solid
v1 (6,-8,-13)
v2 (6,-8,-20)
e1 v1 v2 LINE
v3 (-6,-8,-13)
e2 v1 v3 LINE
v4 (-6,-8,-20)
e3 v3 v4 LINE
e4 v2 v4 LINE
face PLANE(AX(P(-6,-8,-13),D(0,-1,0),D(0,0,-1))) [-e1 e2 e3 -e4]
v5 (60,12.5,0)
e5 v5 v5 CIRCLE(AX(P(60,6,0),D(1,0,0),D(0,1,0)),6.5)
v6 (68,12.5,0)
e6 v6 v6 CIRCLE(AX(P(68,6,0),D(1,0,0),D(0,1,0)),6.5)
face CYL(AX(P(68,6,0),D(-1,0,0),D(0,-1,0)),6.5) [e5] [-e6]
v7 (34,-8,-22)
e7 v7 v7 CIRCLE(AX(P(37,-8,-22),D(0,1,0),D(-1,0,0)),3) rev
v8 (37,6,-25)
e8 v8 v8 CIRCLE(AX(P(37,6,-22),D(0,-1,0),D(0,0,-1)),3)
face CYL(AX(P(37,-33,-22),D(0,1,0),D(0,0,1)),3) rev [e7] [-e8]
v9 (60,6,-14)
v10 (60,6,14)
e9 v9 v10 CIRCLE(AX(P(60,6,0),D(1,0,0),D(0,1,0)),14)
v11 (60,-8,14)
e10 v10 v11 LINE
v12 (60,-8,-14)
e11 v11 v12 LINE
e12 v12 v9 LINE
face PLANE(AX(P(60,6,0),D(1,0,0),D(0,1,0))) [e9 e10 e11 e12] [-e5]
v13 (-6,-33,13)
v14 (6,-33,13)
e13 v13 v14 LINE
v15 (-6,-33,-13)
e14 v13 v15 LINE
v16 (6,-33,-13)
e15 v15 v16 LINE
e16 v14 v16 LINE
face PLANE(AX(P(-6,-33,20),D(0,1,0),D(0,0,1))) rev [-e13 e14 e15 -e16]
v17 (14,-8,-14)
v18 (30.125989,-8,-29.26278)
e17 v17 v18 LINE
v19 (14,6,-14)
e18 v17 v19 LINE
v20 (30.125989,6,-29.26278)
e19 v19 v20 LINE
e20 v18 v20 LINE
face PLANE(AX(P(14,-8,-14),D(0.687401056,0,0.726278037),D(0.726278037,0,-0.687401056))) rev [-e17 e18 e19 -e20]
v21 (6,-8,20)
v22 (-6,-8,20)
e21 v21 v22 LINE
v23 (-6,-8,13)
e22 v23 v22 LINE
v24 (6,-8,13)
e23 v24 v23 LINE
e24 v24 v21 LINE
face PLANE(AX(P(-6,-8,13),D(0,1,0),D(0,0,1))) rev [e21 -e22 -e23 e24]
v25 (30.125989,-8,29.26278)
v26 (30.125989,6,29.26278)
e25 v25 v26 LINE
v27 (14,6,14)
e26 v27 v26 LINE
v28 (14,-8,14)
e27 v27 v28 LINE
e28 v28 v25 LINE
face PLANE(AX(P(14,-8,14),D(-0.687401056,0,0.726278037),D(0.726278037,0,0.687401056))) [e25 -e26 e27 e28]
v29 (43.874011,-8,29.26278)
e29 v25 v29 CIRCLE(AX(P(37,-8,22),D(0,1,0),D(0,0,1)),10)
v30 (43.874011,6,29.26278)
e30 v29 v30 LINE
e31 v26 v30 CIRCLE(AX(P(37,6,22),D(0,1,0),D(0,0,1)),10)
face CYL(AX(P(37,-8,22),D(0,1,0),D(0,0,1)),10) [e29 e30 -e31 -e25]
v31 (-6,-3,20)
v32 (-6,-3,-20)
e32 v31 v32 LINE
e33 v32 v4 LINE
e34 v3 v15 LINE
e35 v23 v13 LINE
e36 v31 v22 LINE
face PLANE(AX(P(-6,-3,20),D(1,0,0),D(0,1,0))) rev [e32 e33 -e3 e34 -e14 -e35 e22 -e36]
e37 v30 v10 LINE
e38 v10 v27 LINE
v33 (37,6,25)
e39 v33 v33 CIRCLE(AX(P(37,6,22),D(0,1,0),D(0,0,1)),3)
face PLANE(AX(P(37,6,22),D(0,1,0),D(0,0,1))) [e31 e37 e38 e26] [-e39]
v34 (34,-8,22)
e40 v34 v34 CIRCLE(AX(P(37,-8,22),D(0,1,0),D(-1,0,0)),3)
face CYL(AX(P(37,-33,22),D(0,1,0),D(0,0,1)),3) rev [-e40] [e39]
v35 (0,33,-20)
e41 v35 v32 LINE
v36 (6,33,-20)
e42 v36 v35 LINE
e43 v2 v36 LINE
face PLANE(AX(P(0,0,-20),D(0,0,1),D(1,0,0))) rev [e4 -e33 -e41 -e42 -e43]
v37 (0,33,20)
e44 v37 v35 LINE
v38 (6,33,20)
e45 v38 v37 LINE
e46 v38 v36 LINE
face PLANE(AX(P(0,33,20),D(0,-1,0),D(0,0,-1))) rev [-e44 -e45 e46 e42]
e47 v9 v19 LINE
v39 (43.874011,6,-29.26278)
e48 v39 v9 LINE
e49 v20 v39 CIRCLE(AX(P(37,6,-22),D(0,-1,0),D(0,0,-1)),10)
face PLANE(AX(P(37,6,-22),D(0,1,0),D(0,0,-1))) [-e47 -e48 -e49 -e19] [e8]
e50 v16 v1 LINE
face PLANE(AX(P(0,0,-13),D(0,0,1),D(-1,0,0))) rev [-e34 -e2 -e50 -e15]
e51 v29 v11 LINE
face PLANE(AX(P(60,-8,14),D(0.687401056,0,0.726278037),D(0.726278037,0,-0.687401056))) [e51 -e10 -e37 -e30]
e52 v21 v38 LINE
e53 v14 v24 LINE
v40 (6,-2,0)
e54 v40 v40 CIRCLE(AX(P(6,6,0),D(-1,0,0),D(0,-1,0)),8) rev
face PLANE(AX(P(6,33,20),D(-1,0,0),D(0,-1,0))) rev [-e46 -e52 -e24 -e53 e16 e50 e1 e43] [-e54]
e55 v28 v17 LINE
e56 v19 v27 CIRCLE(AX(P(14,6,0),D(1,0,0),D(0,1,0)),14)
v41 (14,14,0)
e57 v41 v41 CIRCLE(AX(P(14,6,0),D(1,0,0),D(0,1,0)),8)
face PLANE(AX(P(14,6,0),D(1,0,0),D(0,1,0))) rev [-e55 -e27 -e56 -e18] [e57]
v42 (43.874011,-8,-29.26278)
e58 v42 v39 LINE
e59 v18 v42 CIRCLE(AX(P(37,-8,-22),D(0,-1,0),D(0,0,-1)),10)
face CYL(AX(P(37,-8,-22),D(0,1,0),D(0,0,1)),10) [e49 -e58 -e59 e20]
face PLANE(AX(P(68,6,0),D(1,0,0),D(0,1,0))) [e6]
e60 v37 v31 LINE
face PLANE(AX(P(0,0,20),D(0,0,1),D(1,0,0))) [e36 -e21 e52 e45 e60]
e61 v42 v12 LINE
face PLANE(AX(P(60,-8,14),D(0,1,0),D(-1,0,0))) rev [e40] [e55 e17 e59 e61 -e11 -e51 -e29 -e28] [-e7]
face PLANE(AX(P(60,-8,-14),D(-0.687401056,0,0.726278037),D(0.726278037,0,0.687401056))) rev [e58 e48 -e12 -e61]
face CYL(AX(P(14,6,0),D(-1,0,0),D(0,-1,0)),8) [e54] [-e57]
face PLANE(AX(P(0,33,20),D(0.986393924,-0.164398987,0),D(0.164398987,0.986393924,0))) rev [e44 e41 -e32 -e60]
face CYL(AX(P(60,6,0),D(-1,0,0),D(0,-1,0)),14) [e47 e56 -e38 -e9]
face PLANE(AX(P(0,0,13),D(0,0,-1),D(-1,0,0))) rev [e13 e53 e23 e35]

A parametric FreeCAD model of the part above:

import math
import FreeCAD as App
import Part
import Sketcher

V = App.Vector
Q = App.Units.Quantity

doc = App.newDocument("Part")
params = doc.addObject("Spreadsheet::Sheet", "Params")
for row, (alias, value) in enumerate([
    ("sketch1_width", "6 mm"),
    ("sketch1_height", "30 mm"),
    ("sketch1_height2", "66 mm"),
    ("pad1_length", "40 mm"),
    ("sketch2_width", "12 mm"),
    ("sketch2_height", "25 mm"),
    ("pocket1_length", "7 mm"),
    ("sketch3_diameter", "16 mm"),
    ("pad2_length", "8 mm"),
    ("sketch4_radius", "14 mm"),
    ("sketch4_width", "14 mm"),
    ("pad3_length", "46 mm"),
    ("sketch5_radius", "10 mm"),
    ("sketch5_width", "46 mm"),
    ("pad4_length", "14 mm"),
    ("sketch6_diameter", "13 mm"),
    ("pad5_length", "8 mm"),
    ("sketch7_diameter", "6 mm"),
], start=1):
    params.set(f"A{row}", alias)
    params.set(f"B{row}", "=" + value)
    params.setAlias(f"B{row}", alias)

body = doc.addObject("PartDesign::Body", "Body")

# Sketch on XY plane
sketch1 = body.newObject("Sketcher::SketchObject", "Sketch")
sketch1.AttachmentSupport = (doc.getObject("XY_Plane"), [""])
sketch1.MapMode = "FlatFace"
sketch1.addGeometry(Part.LineSegment(V(6, 33, 0), V(0, 33, 0)), False)
sketch1.addGeometry(Part.LineSegment(V(0, 33, 0), V(-6, -3, 0)), False)
sketch1.addGeometry(Part.LineSegment(V(-6, -3, 0), V(-6, -33, 0)), False)
sketch1.addGeometry(Part.LineSegment(V(-6, -33, 0), V(6, -33, 0)), False)
sketch1.addGeometry(Part.LineSegment(V(6, -33, 0), V(6, 33, 0)), False)
sketch1.addConstraint(Sketcher.Constraint("Coincident", 0, 2, 1, 1))
sketch1.addConstraint(Sketcher.Constraint("Coincident", 1, 2, 2, 1))
sketch1.addConstraint(Sketcher.Constraint("Coincident", 2, 2, 3, 1))
sketch1.addConstraint(Sketcher.Constraint("Coincident", 3, 2, 4, 1))
sketch1.addConstraint(Sketcher.Constraint("Coincident", 4, 2, 0, 1))
sketch1.addConstraint(Sketcher.Constraint("Horizontal", 0))
sketch1.addConstraint(Sketcher.Constraint("Vertical", 2))
sketch1.addConstraint(Sketcher.Constraint("Horizontal", 3))
sketch1.addConstraint(Sketcher.Constraint("Vertical", 4))
sketch1.addConstraint(Sketcher.Constraint("Symmetric", 2, 2, 4, 2, -1, 1))
sketch1.addConstraint(Sketcher.Constraint("PointOnObject", 0, 2, -2))
sketch1.addConstraint(Sketcher.Constraint("DistanceX", 0, 2, 0, 1, Q("6 mm")))
sketch1.addConstraint(Sketcher.Constraint("DistanceY", 2, 2, 2, 1, Q("30 mm")))
sketch1.addConstraint(Sketcher.Constraint("DistanceY", 4, 1, 4, 2, Q("66 mm")))
sketch1.setExpression("Constraints[11]", "Params.sketch1_width")
sketch1.setExpression("Constraints[12]", "Params.sketch1_height")
sketch1.setExpression("Constraints[13]", "Params.sketch1_height2")
pad1 = body.newObject("PartDesign::Pad", "Pad")
pad1.Profile = sketch1
pad1.setExpression("Length", "Params.pad1_length")
pad1.Midplane = True

# Sketch on XY plane
sketch2 = body.newObject("Sketcher::SketchObject", "Sketch001")
sketch2.AttachmentSupport = (doc.getObject("XY_Plane"), [""])
sketch2.MapMode = "FlatFace"
sketch2.AttachmentOffset = App.Placement(V(0, 0, 20), App.Rotation())
sketch2.addGeometry(Part.LineSegment(V(-6, -8, 0), V(-6, -33, 0)), False)
sketch2.addGeometry(Part.LineSegment(V(-6, -33, 0), V(6, -33, 0)), False)
sketch2.addGeometry(Part.LineSegment(V(6, -33, 0), V(6, -8, 0)), False)
sketch2.addGeometry(Part.LineSegment(V(6, -8, 0), V(-6, -8, 0)), False)
sketch2.addConstraint(Sketcher.Constraint("Coincident", 0, 2, 1, 1))
sketch2.addConstraint(Sketcher.Constraint("Coincident", 1, 2, 2, 1))
sketch2.addConstraint(Sketcher.Constraint("Coincident", 2, 2, 3, 1))
sketch2.addConstraint(Sketcher.Constraint("Coincident", 3, 2, 0, 1))
sketch2.addConstraint(Sketcher.Constraint("Vertical", 0))
sketch2.addConstraint(Sketcher.Constraint("Horizontal", 1))
sketch2.addConstraint(Sketcher.Constraint("Vertical", 2))
sketch2.addConstraint(Sketcher.Constraint("Horizontal", 3))
sketch2.addConstraint(Sketcher.Constraint("DistanceX", 1, 1, 1, 2, Q("12 mm")))
sketch2.addConstraint(Sketcher.Constraint("DistanceY", 0, 2, 0, 1, Q("25 mm")))
sketch2.addConstraint(Sketcher.Constraint("DistanceX", 0, 2, -1, 1, Q("6 mm")))
sketch2.addConstraint(Sketcher.Constraint("DistanceY", 0, 2, -1, 1, Q("33 mm")))
sketch2.setExpression("Constraints[8]", "Params.sketch2_width")
sketch2.setExpression("Constraints[9]", "Params.sketch2_height")
pocket1 = body.newObject("PartDesign::Pocket", "Pocket")
pocket1.Profile = sketch2
pocket1.setExpression("Length", "Params.pocket1_length")
doc.recompute()

mirrored = body.newObject("PartDesign::Mirrored", "Mirrored")
mirrored.Originals = [pocket1]
mirrored.MirrorPlane = (doc.getObject("XY_Plane"), [""])
body.Tip = mirrored

# Sketch on YZ plane
sketch3 = body.newObject("Sketcher::SketchObject", "Sketch002")
sketch3.AttachmentSupport = (doc.getObject("YZ_Plane"), [""])
sketch3.MapMode = "FlatFace"
sketch3.AttachmentOffset = App.Placement(V(0, 0, 6), App.Rotation())
sketch3.addGeometry(Part.Circle(V(6, 0, 0), V(0, 0, 1), 8), False)
sketch3.addConstraint(Sketcher.Constraint("PointOnObject", 0, 3, -1))
sketch3.addConstraint(Sketcher.Constraint("Diameter", 0, Q("16 mm")))
sketch3.addConstraint(Sketcher.Constraint("DistanceX", -1, 1, 0, 3, Q("6 mm")))
sketch3.setExpression("Constraints[1]", "Params.sketch3_diameter")
pad2 = body.newObject("PartDesign::Pad", "Pad001")
pad2.Profile = sketch3
pad2.setExpression("Length", "Params.pad2_length")

# Sketch on YZ plane
sketch4 = body.newObject("Sketcher::SketchObject", "Sketch003")
sketch4.AttachmentSupport = (doc.getObject("YZ_Plane"), [""])
sketch4.MapMode = "FlatFace"
sketch4.AttachmentOffset = App.Placement(V(0, 0, 14), App.Rotation())
sketch4.addGeometry(Part.LineSegment(V(6, 14, 0), V(-8, 14, 0)), False)
sketch4.addGeometry(Part.LineSegment(V(-8, 14, 0), V(-8, -14, 0)), False)
sketch4.addGeometry(Part.LineSegment(V(-8, -14, 0), V(6, -14, 0)), False)
sketch4.addGeometry(Part.ArcOfCircle(Part.Circle(V(6, 0, 0), V(0, 0, 1), 14), math.radians(-90), math.radians(90)), False)
sketch4.addConstraint(Sketcher.Constraint("Coincident", 0, 2, 1, 1))
sketch4.addConstraint(Sketcher.Constraint("Coincident", 1, 2, 2, 1))
sketch4.addConstraint(Sketcher.Constraint("Tangent", 2, 2, 3, 1))
sketch4.addConstraint(Sketcher.Constraint("Tangent", 3, 2, 0, 1))
sketch4.addConstraint(Sketcher.Constraint("Horizontal", 0))
sketch4.addConstraint(Sketcher.Constraint("Vertical", 1))
sketch4.addConstraint(Sketcher.Constraint("Horizontal", 2))
sketch4.addConstraint(Sketcher.Constraint("PointOnObject", 3, 3, -1))
sketch4.addConstraint(Sketcher.Constraint("Radius", 3, Q("14 mm")))
sketch4.addConstraint(Sketcher.Constraint("DistanceX", 0, 2, 0, 1, Q("14 mm")))
sketch4.addConstraint(Sketcher.Constraint("DistanceX", -1, 1, 3, 3, Q("6 mm")))
sketch4.setExpression("Constraints[8]", "Params.sketch4_radius")
sketch4.setExpression("Constraints[9]", "Params.sketch4_width")
pad3 = body.newObject("PartDesign::Pad", "Pad002")
pad3.Profile = sketch4
pad3.setExpression("Length", "Params.pad3_length")

# Sketch on XZ plane
sketch5 = body.newObject("Sketcher::SketchObject", "Sketch004")
sketch5.AttachmentSupport = (doc.getObject("XZ_Plane"), [""])
sketch5.MapMode = "FlatFace"
sketch5.AttachmentOffset = App.Placement(V(0, 0, -6), App.Rotation())
sketch5.addGeometry(Part.LineSegment(V(60, 14, 0), V(14, 14, 0)), False)
sketch5.addGeometry(Part.LineSegment(V(14, 14, 0), V(30, 29, 0)), False)
sketch5.addGeometry(Part.ArcOfCircle(Part.Circle(V(37, 22, 0), V(0, 0, 1), 10), math.radians(47), math.radians(133)), False)
sketch5.addGeometry(Part.LineSegment(V(44, 29, 0), V(60, 14, 0)), False)
sketch5.addConstraint(Sketcher.Constraint("Coincident", 0, 2, 1, 1))
sketch5.addConstraint(Sketcher.Constraint("Tangent", 1, 2, 2, 2))
sketch5.addConstraint(Sketcher.Constraint("Tangent", 2, 1, 3, 1))
sketch5.addConstraint(Sketcher.Constraint("Coincident", 3, 2, 0, 1))
sketch5.addConstraint(Sketcher.Constraint("Horizontal", 0))
sketch5.addConstraint(Sketcher.Constraint("Horizontal", 1, 2, 2, 1))
sketch5.addConstraint(Sketcher.Constraint("Radius", 2, Q("10 mm")))
sketch5.addConstraint(Sketcher.Constraint("DistanceX", 0, 2, 0, 1, Q("46 mm")))
sketch5.addConstraint(Sketcher.Constraint("DistanceX", -1, 1, 2, 3, Q("37 mm")))
sketch5.addConstraint(Sketcher.Constraint("DistanceY", -1, 1, 2, 3, Q("22 mm")))
sketch5.addConstraint(Sketcher.Constraint("DistanceY", -1, 1, 0, 2, Q("14 mm")))
sketch5.setExpression("Constraints[6]", "Params.sketch5_radius")
sketch5.setExpression("Constraints[7]", "Params.sketch5_width")
pad4 = body.newObject("PartDesign::Pad", "Pad003")
pad4.Profile = sketch5
pad4.setExpression("Length", "Params.pad4_length")
doc.recompute()

mirrored2 = body.newObject("PartDesign::Mirrored", "Mirrored001")
mirrored2.Originals = [pad4]
mirrored2.MirrorPlane = (doc.getObject("XY_Plane"), [""])
body.Tip = mirrored2

# Sketch on YZ plane
sketch6 = body.newObject("Sketcher::SketchObject", "Sketch005")
sketch6.AttachmentSupport = (doc.getObject("YZ_Plane"), [""])
sketch6.MapMode = "FlatFace"
sketch6.AttachmentOffset = App.Placement(V(0, 0, 60), App.Rotation())
sketch6.addGeometry(Part.Circle(V(6, 0, 0), V(0, 0, 1), 6), False)
sketch6.addConstraint(Sketcher.Constraint("PointOnObject", 0, 3, -1))
sketch6.addConstraint(Sketcher.Constraint("Diameter", 0, Q("13 mm")))
sketch6.addConstraint(Sketcher.Constraint("DistanceX", -1, 1, 0, 3, Q("6 mm")))
sketch6.setExpression("Constraints[1]", "Params.sketch6_diameter")
pad5 = body.newObject("PartDesign::Pad", "Pad004")
pad5.Profile = sketch6
pad5.setExpression("Length", "Params.pad5_length")

# Sketch on XZ plane
sketch7 = body.newObject("Sketcher::SketchObject", "Sketch006")
sketch7.AttachmentSupport = (doc.getObject("XZ_Plane"), [""])
sketch7.MapMode = "FlatFace"
sketch7.AttachmentOffset = App.Placement(V(0, 0, -6), App.Rotation())
sketch7.addGeometry(Part.Circle(V(37, 22, 0), V(0, 0, 1), 3), False)
sketch7.addConstraint(Sketcher.Constraint("Diameter", 0, Q("6 mm")))
sketch7.addConstraint(Sketcher.Constraint("DistanceX", -1, 1, 0, 3, Q("37 mm")))
sketch7.addConstraint(Sketcher.Constraint("DistanceY", -1, 1, 0, 3, Q("22 mm")))
sketch7.setExpression("Constraints[0]", "Params.sketch7_diameter")
pocket2 = body.newObject("PartDesign::Pocket", "Pocket001")
pocket2.Profile = sketch7
pocket2.Type = "ThroughAll"
pocket2.Reversed = True
doc.recompute()

mirrored3 = body.newObject("PartDesign::Mirrored", "Mirrored002")
mirrored3.Originals = [pocket2]
mirrored3.MirrorPlane = (doc.getObject("XY_Plane"), [""])
body.Tip = mirrored3

doc.recompute()
